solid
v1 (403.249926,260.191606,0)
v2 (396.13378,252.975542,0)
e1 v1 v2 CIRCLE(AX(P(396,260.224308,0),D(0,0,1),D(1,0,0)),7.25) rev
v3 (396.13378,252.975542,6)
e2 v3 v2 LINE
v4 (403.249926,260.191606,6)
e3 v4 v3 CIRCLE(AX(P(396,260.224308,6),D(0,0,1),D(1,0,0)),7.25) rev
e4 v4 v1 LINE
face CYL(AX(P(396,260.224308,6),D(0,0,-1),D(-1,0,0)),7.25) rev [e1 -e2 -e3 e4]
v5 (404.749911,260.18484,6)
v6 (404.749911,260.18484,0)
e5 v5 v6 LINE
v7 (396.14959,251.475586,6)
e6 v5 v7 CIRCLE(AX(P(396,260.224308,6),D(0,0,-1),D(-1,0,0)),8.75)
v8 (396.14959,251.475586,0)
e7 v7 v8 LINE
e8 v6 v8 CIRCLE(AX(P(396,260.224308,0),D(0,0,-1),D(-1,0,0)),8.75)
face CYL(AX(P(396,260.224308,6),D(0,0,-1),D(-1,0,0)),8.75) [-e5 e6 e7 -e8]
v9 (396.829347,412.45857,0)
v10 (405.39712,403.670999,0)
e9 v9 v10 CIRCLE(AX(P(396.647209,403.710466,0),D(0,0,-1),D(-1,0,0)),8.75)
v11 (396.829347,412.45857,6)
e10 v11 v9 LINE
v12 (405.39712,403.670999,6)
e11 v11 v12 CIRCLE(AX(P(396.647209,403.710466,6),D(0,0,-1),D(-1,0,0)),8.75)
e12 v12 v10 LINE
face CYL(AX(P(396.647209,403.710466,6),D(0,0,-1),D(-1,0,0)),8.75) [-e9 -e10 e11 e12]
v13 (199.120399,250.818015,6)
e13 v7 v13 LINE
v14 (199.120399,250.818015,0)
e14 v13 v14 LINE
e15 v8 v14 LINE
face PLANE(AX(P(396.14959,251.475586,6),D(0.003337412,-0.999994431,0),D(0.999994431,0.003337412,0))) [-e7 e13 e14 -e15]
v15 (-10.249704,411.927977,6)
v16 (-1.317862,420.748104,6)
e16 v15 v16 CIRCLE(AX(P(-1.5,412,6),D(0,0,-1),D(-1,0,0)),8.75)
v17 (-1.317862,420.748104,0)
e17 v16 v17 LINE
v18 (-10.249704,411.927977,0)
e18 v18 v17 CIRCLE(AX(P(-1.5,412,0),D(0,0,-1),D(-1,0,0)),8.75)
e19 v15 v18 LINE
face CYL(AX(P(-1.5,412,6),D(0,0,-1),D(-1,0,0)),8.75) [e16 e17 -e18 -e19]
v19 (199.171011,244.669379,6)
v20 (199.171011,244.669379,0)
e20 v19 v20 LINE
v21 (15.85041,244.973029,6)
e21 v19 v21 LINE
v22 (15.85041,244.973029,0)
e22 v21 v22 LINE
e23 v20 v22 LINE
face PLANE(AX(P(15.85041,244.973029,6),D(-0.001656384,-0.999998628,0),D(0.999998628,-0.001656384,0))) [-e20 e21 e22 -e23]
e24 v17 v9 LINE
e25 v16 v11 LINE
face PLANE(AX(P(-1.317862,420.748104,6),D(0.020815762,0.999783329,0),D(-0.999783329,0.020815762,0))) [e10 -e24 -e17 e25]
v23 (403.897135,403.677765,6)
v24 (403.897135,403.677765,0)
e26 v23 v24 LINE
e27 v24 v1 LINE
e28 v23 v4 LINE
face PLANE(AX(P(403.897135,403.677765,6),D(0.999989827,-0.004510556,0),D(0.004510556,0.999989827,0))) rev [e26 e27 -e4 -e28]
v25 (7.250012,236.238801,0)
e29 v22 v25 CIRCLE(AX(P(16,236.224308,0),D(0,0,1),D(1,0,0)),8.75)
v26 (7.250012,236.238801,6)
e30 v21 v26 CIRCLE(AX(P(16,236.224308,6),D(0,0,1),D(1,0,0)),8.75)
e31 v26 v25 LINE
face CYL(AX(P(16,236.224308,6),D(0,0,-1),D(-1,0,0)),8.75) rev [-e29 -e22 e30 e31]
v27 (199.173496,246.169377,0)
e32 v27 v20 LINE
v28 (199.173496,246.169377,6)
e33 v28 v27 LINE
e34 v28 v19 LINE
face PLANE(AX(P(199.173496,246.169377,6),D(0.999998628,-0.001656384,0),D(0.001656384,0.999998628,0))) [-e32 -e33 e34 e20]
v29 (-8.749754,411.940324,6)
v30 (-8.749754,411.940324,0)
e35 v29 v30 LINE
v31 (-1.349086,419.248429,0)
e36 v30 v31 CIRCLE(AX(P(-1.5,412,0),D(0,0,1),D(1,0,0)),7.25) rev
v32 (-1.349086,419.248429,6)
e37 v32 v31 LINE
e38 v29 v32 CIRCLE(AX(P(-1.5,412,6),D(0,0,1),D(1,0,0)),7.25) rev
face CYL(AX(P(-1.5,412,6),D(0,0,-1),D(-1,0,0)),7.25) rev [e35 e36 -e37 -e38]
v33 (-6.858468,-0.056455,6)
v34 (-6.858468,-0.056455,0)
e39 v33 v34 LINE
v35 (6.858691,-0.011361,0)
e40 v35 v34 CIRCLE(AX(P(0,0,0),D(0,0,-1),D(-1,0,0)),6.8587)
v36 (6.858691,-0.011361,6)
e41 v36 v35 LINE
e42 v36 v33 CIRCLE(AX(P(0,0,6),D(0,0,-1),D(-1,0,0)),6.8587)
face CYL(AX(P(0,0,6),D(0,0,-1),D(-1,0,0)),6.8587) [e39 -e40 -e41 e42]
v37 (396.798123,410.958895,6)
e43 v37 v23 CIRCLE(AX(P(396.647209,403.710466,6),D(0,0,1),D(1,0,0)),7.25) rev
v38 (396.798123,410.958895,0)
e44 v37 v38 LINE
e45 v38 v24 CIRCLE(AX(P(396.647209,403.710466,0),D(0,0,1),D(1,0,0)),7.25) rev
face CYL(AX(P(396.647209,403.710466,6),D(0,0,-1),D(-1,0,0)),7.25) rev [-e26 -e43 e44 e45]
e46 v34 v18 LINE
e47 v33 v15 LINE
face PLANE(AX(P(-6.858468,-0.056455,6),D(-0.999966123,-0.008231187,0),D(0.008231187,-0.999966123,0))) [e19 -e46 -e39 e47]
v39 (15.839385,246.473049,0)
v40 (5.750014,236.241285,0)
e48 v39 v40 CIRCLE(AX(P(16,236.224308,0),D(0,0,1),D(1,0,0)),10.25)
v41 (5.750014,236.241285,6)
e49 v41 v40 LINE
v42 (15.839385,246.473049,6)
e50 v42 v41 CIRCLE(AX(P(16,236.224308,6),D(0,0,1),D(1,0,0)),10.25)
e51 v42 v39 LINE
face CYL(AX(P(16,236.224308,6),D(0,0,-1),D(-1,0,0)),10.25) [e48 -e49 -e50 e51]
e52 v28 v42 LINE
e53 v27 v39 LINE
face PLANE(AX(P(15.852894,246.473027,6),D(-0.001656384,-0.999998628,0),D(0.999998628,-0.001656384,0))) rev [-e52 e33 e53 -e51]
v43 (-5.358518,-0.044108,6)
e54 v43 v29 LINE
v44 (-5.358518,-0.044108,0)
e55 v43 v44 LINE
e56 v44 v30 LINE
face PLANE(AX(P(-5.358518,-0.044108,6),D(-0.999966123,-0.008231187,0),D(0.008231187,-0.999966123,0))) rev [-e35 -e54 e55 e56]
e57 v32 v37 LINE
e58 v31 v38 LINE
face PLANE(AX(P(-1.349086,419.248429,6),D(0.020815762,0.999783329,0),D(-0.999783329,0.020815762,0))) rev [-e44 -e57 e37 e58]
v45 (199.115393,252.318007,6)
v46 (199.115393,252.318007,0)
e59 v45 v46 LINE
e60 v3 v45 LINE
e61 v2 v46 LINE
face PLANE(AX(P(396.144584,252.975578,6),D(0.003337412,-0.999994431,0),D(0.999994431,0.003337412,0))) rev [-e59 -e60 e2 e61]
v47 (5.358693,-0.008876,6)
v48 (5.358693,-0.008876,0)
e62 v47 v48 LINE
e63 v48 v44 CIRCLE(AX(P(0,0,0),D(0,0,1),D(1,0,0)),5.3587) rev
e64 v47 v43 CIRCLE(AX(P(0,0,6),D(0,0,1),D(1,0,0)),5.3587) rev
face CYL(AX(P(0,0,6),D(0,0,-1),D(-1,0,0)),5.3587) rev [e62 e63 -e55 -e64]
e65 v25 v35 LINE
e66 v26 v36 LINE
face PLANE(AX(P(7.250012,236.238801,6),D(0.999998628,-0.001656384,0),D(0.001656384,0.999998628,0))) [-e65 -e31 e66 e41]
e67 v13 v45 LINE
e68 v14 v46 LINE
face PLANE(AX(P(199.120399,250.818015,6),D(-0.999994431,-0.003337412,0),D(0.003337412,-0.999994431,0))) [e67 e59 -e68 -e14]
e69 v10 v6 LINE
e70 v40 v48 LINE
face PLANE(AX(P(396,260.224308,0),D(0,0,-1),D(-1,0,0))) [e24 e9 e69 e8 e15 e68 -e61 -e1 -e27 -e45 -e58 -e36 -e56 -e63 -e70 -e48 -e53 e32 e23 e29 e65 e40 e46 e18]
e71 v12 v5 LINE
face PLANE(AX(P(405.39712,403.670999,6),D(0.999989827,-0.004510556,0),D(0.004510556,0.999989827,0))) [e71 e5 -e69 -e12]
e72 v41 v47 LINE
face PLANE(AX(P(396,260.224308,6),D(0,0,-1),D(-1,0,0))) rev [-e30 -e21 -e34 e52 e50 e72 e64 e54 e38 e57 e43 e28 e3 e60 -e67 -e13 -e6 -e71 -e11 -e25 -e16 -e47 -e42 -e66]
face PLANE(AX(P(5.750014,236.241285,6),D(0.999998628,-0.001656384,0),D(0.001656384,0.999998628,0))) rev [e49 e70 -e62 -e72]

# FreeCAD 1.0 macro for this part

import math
import FreeCAD as App
import Part
import Sketcher

doc = App.newDocument("Part")
params = doc.addObject("Spreadsheet::Sheet", "Params")
for row, (alias, value) in enumerate([
    ("sketch1_radius", "10.25 mm"),
    ("sketch1_radius2", "7.25 mm"),
    ("sketch1_length", "1.5 mm"),
    ("pad1_length", "6 mm"),
], start=1):
    params.set(f"A{row}", alias)
    params.set(f"B{row}", "=" + value)
    params.setAlias(f"B{row}", alias)

body = doc.addObject("PartDesign::Body", "Body")

sketch1 = doc.addObject("Sketcher::SketchObject", "Sketch")
body.addObject(sketch1)
sketch1.AttachmentSupport = (doc.XY_Plane, [""])
sketch1.MapMode = "FlatFace"
sketch1.addGeometry([
    Part.LineSegment(App.Vector(15.85041, 244.973029, 0), App.Vector(199.171011, 244.669379, 0)),
    Part.LineSegment(App.Vector(199.171011, 244.669379, 0), App.Vector(199.173496, 246.169377, 0)),
    Part.LineSegment(App.Vector(199.173496, 246.169377, 0), App.Vector(15.839385, 246.473049, 0)),
    Part.ArcOfCircle(Part.Circle(App.Vector(16, 236.224308, 0), App.Vector(0, 0, 1), 10.25), math.radians(90.897847), math.radians(179.905096)),
    Part.LineSegment(App.Vector(5.750014, 236.241285, 0), App.Vector(5.358693, -0.008876, 0)),
    Part.ArcOfCircle(Part.Circle(App.Vector(0, 0, 0), App.Vector(0, 0, 1), 5.3587), math.radians(-179.528382), math.radians(-0.094904)),
    Part.LineSegment(App.Vector(-5.358518, -0.044108, 0), App.Vector(-8.749754, 411.940324, 0)),
    Part.ArcOfCircle(Part.Circle(App.Vector(-1.5, 412, 0), App.Vector(0, 0, 1), 7.25), math.radians(88.807259), math.radians(180.471618)),
    Part.LineSegment(App.Vector(-1.349086, 419.248429, 0), App.Vector(396.798123, 410.958895, 0)),
    Part.ArcOfCircle(Part.Circle(App.Vector(396.647209, 403.710466, 0), App.Vector(0, 0, 1), 7.25), math.radians(-0.258437), math.radians(88.807259)),
    Part.LineSegment(App.Vector(403.897135, 403.677765, 0), App.Vector(403.249926, 260.191606, 0)),
    Part.ArcOfCircle(Part.Circle(App.Vector(396, 260.224308, 0), App.Vector(0, 0, 1), 7.25), math.radians(-88.942697), math.radians(-0.258437)),
    Part.LineSegment(App.Vector(396.13378, 252.975542, 0), App.Vector(199.115393, 252.318007, 0)),
    Part.LineSegment(App.Vector(199.115393, 252.318007, 0), App.Vector(199.120399, 250.818015, 0)),
    Part.LineSegment(App.Vector(199.120399, 250.818015, 0), App.Vector(396.14959, 251.475586, 0)),
    Part.ArcOfCircle(Part.Circle(App.Vector(396, 260.224308, 0), App.Vector(0, 0, 1), 8.75), math.radians(-89.020422), math.radians(-0.258437)),
    Part.LineSegment(App.Vector(404.749911, 260.18484, 0), App.Vector(405.39712, 403.670999, 0)),
    Part.ArcOfCircle(Part.Circle(App.Vector(396.647209, 403.710466, 0), App.Vector(0, 0, 1), 8.75), math.radians(-0.258437), math.radians(88.807259)),
    Part.LineSegment(App.Vector(396.829347, 412.45857, 0), App.Vector(-1.317862, 420.748104, 0)),
    Part.ArcOfCircle(Part.Circle(App.Vector(-1.5, 412, 0), App.Vector(0, 0, 1), 8.75), math.radians(88.807259), math.radians(180.471618)),
    Part.LineSegment(App.Vector(-10.249704, 411.927977, 0), App.Vector(-6.858468, -0.056455, 0)),
    Part.ArcOfCircle(Part.Circle(App.Vector(0, 0, 0), App.Vector(0, 0, 1), 6.8587), math.radians(-179.528382), math.radians(-0.094904)),
    Part.LineSegment(App.Vector(6.858691, -0.011361, 0), App.Vector(7.250012, 236.238801, 0)),
    Part.ArcOfCircle(Part.Circle(App.Vector(16, 236.224308, 0), App.Vector(0, 0, 1), 8.75), math.radians(90.979578), math.radians(179.905096)),
], False)
sketch1.addConstraint([
    Sketcher.Constraint("Coincident", 0, 2, 1, 1),
    Sketcher.Constraint("Coincident", 1, 2, 2, 1),
    Sketcher.Constraint("Coincident", 2, 2, 3, 1),
    Sketcher.Constraint("Tangent", 3, 2, 4, 1),
    Sketcher.Constraint("Tangent", 4, 2, 5, 2),
    Sketcher.Constraint("Tangent", 5, 1, 6, 1),
    Sketcher.Constraint("Tangent", 6, 2, 7, 2),
    Sketcher.Constraint("Tangent", 7, 1, 8, 1),
    Sketcher.Constraint("Tangent", 8, 2, 9, 2),
    Sketcher.Constraint("Tangent", 9, 1, 10, 1),
    Sketcher.Constraint("Tangent", 10, 2, 11, 2),
    Sketcher.Constraint("Coincident", 11, 1, 12, 1),
    Sketcher.Constraint("Coincident", 12, 2, 13, 1),
    Sketcher.Constraint("Coincident", 13, 2, 14, 1),
    Sketcher.Constraint("Coincident", 14, 2, 15, 1),
    Sketcher.Constraint("Tangent", 15, 2, 16, 1),
    Sketcher.Constraint("Tangent", 16, 2, 17, 1),
    Sketcher.Constraint("Tangent", 17, 2, 18, 1),
    Sketcher.Constraint("Tangent", 18, 2, 19, 1),
    Sketcher.Constraint("Tangent", 19, 2, 20, 1),
    Sketcher.Constraint("Tangent", 20, 2, 21, 1),
    Sketcher.Constraint("Tangent", 21, 2, 22, 1),
    Sketcher.Constraint("Tangent", 22, 2, 23, 2),
    Sketcher.Constraint("Coincident", 23, 1, 0, 1),
    Sketcher.Constraint("Coincident", 5, 3, -1, 1),
    Sketcher.Constraint("Coincident", 21, 3, -1, 1),
    Sketcher.Constraint("Coincident", 15, 3, 11, 3),
    Sketcher.Constraint("Coincident", 17, 3, 9, 3),
    Sketcher.Constraint("Coincident", 19, 3, 7, 3),
    Sketcher.Constraint("Coincident", 23, 3, 3, 3),
    Sketcher.Constraint("Equal", 7, 9),
    Sketcher.Constraint("Equal", 9, 11),
    Sketcher.Constraint("Equal", 15, 17),
    Sketcher.Constraint("Equal", 17, 19),
    Sketcher.Constraint("Equal", 19, 23),
    Sketcher.Constraint("Perpendicular", 0, 1),
    Sketcher.Constraint("Perpendicular", 1, 2),
    Sketcher.Constraint("Perpendicular", 2, 4),
    Sketcher.Constraint("Perpendicular", 12, 13),
    Sketcher.Constraint("Perpendicular", 13, 14),
    Sketcher.Constraint("Parallel", 6, 20),
    Sketcher.Constraint("Parallel", 4, 22),
    Sketcher.Constraint("Equal", 1, 13),
    Sketcher.Constraint("Radius", 3, 10.25),
    Sketcher.Constraint("Radius", 7, 7.25),
    Sketcher.Constraint("DistanceX", -1, 1, 3, 3, 16.0),
    Sketcher.Constraint("DistanceY", -1, 1, 7, 3, 412.0),
    Sketcher.Constraint("DistanceX", -1, 1, 11, 3, 396.0),
    Sketcher.Constraint("DistanceY", 3, 3, 11, 3, 24.0),
    Sketcher.Constraint("Distance", 1, 1.5),
    Sketcher.Constraint("DistanceX", 7, 3, -1, 1, 1.5),
    Sketcher.Constraint("Radius", 5, 5.3587),
    Sketcher.Constraint("DistanceY", -1, 1, 16, 2, 403.670999),
    Sketcher.Constraint("DistanceX", -1, 1, 13, 2, 199.120399),
    Sketcher.Constraint("DistanceY", -1, 1, 22, 2, 236.238801),
    Sketcher.Constraint("DistanceY", 9, 1, 17, 3, 0.032702),
    Sketcher.Constraint("DistanceY", 3, 3, 12, 2, 16.093699),
    Sketcher.Constraint("Distance", 2, 183.334362),
    Sketcher.Constraint("Distance", 14, 197.030289),
    Sketcher.Constraint("DistanceX", -1, 1, 0, 2, 199.171011),
])
sketch1.setExpression("Constraints[43]", "Params.sketch1_radius")
sketch1.setExpression("Constraints[44]", "Params.sketch1_radius2")
sketch1.setExpression("Constraints[49]", "Params.sketch1_length")
pad1 = doc.addObject("PartDesign::Pad", "Pad")
body.addObject(pad1)
pad1.Profile = sketch1
pad1.setExpression("Length", "Params.pad1_length")

doc.recompute()
